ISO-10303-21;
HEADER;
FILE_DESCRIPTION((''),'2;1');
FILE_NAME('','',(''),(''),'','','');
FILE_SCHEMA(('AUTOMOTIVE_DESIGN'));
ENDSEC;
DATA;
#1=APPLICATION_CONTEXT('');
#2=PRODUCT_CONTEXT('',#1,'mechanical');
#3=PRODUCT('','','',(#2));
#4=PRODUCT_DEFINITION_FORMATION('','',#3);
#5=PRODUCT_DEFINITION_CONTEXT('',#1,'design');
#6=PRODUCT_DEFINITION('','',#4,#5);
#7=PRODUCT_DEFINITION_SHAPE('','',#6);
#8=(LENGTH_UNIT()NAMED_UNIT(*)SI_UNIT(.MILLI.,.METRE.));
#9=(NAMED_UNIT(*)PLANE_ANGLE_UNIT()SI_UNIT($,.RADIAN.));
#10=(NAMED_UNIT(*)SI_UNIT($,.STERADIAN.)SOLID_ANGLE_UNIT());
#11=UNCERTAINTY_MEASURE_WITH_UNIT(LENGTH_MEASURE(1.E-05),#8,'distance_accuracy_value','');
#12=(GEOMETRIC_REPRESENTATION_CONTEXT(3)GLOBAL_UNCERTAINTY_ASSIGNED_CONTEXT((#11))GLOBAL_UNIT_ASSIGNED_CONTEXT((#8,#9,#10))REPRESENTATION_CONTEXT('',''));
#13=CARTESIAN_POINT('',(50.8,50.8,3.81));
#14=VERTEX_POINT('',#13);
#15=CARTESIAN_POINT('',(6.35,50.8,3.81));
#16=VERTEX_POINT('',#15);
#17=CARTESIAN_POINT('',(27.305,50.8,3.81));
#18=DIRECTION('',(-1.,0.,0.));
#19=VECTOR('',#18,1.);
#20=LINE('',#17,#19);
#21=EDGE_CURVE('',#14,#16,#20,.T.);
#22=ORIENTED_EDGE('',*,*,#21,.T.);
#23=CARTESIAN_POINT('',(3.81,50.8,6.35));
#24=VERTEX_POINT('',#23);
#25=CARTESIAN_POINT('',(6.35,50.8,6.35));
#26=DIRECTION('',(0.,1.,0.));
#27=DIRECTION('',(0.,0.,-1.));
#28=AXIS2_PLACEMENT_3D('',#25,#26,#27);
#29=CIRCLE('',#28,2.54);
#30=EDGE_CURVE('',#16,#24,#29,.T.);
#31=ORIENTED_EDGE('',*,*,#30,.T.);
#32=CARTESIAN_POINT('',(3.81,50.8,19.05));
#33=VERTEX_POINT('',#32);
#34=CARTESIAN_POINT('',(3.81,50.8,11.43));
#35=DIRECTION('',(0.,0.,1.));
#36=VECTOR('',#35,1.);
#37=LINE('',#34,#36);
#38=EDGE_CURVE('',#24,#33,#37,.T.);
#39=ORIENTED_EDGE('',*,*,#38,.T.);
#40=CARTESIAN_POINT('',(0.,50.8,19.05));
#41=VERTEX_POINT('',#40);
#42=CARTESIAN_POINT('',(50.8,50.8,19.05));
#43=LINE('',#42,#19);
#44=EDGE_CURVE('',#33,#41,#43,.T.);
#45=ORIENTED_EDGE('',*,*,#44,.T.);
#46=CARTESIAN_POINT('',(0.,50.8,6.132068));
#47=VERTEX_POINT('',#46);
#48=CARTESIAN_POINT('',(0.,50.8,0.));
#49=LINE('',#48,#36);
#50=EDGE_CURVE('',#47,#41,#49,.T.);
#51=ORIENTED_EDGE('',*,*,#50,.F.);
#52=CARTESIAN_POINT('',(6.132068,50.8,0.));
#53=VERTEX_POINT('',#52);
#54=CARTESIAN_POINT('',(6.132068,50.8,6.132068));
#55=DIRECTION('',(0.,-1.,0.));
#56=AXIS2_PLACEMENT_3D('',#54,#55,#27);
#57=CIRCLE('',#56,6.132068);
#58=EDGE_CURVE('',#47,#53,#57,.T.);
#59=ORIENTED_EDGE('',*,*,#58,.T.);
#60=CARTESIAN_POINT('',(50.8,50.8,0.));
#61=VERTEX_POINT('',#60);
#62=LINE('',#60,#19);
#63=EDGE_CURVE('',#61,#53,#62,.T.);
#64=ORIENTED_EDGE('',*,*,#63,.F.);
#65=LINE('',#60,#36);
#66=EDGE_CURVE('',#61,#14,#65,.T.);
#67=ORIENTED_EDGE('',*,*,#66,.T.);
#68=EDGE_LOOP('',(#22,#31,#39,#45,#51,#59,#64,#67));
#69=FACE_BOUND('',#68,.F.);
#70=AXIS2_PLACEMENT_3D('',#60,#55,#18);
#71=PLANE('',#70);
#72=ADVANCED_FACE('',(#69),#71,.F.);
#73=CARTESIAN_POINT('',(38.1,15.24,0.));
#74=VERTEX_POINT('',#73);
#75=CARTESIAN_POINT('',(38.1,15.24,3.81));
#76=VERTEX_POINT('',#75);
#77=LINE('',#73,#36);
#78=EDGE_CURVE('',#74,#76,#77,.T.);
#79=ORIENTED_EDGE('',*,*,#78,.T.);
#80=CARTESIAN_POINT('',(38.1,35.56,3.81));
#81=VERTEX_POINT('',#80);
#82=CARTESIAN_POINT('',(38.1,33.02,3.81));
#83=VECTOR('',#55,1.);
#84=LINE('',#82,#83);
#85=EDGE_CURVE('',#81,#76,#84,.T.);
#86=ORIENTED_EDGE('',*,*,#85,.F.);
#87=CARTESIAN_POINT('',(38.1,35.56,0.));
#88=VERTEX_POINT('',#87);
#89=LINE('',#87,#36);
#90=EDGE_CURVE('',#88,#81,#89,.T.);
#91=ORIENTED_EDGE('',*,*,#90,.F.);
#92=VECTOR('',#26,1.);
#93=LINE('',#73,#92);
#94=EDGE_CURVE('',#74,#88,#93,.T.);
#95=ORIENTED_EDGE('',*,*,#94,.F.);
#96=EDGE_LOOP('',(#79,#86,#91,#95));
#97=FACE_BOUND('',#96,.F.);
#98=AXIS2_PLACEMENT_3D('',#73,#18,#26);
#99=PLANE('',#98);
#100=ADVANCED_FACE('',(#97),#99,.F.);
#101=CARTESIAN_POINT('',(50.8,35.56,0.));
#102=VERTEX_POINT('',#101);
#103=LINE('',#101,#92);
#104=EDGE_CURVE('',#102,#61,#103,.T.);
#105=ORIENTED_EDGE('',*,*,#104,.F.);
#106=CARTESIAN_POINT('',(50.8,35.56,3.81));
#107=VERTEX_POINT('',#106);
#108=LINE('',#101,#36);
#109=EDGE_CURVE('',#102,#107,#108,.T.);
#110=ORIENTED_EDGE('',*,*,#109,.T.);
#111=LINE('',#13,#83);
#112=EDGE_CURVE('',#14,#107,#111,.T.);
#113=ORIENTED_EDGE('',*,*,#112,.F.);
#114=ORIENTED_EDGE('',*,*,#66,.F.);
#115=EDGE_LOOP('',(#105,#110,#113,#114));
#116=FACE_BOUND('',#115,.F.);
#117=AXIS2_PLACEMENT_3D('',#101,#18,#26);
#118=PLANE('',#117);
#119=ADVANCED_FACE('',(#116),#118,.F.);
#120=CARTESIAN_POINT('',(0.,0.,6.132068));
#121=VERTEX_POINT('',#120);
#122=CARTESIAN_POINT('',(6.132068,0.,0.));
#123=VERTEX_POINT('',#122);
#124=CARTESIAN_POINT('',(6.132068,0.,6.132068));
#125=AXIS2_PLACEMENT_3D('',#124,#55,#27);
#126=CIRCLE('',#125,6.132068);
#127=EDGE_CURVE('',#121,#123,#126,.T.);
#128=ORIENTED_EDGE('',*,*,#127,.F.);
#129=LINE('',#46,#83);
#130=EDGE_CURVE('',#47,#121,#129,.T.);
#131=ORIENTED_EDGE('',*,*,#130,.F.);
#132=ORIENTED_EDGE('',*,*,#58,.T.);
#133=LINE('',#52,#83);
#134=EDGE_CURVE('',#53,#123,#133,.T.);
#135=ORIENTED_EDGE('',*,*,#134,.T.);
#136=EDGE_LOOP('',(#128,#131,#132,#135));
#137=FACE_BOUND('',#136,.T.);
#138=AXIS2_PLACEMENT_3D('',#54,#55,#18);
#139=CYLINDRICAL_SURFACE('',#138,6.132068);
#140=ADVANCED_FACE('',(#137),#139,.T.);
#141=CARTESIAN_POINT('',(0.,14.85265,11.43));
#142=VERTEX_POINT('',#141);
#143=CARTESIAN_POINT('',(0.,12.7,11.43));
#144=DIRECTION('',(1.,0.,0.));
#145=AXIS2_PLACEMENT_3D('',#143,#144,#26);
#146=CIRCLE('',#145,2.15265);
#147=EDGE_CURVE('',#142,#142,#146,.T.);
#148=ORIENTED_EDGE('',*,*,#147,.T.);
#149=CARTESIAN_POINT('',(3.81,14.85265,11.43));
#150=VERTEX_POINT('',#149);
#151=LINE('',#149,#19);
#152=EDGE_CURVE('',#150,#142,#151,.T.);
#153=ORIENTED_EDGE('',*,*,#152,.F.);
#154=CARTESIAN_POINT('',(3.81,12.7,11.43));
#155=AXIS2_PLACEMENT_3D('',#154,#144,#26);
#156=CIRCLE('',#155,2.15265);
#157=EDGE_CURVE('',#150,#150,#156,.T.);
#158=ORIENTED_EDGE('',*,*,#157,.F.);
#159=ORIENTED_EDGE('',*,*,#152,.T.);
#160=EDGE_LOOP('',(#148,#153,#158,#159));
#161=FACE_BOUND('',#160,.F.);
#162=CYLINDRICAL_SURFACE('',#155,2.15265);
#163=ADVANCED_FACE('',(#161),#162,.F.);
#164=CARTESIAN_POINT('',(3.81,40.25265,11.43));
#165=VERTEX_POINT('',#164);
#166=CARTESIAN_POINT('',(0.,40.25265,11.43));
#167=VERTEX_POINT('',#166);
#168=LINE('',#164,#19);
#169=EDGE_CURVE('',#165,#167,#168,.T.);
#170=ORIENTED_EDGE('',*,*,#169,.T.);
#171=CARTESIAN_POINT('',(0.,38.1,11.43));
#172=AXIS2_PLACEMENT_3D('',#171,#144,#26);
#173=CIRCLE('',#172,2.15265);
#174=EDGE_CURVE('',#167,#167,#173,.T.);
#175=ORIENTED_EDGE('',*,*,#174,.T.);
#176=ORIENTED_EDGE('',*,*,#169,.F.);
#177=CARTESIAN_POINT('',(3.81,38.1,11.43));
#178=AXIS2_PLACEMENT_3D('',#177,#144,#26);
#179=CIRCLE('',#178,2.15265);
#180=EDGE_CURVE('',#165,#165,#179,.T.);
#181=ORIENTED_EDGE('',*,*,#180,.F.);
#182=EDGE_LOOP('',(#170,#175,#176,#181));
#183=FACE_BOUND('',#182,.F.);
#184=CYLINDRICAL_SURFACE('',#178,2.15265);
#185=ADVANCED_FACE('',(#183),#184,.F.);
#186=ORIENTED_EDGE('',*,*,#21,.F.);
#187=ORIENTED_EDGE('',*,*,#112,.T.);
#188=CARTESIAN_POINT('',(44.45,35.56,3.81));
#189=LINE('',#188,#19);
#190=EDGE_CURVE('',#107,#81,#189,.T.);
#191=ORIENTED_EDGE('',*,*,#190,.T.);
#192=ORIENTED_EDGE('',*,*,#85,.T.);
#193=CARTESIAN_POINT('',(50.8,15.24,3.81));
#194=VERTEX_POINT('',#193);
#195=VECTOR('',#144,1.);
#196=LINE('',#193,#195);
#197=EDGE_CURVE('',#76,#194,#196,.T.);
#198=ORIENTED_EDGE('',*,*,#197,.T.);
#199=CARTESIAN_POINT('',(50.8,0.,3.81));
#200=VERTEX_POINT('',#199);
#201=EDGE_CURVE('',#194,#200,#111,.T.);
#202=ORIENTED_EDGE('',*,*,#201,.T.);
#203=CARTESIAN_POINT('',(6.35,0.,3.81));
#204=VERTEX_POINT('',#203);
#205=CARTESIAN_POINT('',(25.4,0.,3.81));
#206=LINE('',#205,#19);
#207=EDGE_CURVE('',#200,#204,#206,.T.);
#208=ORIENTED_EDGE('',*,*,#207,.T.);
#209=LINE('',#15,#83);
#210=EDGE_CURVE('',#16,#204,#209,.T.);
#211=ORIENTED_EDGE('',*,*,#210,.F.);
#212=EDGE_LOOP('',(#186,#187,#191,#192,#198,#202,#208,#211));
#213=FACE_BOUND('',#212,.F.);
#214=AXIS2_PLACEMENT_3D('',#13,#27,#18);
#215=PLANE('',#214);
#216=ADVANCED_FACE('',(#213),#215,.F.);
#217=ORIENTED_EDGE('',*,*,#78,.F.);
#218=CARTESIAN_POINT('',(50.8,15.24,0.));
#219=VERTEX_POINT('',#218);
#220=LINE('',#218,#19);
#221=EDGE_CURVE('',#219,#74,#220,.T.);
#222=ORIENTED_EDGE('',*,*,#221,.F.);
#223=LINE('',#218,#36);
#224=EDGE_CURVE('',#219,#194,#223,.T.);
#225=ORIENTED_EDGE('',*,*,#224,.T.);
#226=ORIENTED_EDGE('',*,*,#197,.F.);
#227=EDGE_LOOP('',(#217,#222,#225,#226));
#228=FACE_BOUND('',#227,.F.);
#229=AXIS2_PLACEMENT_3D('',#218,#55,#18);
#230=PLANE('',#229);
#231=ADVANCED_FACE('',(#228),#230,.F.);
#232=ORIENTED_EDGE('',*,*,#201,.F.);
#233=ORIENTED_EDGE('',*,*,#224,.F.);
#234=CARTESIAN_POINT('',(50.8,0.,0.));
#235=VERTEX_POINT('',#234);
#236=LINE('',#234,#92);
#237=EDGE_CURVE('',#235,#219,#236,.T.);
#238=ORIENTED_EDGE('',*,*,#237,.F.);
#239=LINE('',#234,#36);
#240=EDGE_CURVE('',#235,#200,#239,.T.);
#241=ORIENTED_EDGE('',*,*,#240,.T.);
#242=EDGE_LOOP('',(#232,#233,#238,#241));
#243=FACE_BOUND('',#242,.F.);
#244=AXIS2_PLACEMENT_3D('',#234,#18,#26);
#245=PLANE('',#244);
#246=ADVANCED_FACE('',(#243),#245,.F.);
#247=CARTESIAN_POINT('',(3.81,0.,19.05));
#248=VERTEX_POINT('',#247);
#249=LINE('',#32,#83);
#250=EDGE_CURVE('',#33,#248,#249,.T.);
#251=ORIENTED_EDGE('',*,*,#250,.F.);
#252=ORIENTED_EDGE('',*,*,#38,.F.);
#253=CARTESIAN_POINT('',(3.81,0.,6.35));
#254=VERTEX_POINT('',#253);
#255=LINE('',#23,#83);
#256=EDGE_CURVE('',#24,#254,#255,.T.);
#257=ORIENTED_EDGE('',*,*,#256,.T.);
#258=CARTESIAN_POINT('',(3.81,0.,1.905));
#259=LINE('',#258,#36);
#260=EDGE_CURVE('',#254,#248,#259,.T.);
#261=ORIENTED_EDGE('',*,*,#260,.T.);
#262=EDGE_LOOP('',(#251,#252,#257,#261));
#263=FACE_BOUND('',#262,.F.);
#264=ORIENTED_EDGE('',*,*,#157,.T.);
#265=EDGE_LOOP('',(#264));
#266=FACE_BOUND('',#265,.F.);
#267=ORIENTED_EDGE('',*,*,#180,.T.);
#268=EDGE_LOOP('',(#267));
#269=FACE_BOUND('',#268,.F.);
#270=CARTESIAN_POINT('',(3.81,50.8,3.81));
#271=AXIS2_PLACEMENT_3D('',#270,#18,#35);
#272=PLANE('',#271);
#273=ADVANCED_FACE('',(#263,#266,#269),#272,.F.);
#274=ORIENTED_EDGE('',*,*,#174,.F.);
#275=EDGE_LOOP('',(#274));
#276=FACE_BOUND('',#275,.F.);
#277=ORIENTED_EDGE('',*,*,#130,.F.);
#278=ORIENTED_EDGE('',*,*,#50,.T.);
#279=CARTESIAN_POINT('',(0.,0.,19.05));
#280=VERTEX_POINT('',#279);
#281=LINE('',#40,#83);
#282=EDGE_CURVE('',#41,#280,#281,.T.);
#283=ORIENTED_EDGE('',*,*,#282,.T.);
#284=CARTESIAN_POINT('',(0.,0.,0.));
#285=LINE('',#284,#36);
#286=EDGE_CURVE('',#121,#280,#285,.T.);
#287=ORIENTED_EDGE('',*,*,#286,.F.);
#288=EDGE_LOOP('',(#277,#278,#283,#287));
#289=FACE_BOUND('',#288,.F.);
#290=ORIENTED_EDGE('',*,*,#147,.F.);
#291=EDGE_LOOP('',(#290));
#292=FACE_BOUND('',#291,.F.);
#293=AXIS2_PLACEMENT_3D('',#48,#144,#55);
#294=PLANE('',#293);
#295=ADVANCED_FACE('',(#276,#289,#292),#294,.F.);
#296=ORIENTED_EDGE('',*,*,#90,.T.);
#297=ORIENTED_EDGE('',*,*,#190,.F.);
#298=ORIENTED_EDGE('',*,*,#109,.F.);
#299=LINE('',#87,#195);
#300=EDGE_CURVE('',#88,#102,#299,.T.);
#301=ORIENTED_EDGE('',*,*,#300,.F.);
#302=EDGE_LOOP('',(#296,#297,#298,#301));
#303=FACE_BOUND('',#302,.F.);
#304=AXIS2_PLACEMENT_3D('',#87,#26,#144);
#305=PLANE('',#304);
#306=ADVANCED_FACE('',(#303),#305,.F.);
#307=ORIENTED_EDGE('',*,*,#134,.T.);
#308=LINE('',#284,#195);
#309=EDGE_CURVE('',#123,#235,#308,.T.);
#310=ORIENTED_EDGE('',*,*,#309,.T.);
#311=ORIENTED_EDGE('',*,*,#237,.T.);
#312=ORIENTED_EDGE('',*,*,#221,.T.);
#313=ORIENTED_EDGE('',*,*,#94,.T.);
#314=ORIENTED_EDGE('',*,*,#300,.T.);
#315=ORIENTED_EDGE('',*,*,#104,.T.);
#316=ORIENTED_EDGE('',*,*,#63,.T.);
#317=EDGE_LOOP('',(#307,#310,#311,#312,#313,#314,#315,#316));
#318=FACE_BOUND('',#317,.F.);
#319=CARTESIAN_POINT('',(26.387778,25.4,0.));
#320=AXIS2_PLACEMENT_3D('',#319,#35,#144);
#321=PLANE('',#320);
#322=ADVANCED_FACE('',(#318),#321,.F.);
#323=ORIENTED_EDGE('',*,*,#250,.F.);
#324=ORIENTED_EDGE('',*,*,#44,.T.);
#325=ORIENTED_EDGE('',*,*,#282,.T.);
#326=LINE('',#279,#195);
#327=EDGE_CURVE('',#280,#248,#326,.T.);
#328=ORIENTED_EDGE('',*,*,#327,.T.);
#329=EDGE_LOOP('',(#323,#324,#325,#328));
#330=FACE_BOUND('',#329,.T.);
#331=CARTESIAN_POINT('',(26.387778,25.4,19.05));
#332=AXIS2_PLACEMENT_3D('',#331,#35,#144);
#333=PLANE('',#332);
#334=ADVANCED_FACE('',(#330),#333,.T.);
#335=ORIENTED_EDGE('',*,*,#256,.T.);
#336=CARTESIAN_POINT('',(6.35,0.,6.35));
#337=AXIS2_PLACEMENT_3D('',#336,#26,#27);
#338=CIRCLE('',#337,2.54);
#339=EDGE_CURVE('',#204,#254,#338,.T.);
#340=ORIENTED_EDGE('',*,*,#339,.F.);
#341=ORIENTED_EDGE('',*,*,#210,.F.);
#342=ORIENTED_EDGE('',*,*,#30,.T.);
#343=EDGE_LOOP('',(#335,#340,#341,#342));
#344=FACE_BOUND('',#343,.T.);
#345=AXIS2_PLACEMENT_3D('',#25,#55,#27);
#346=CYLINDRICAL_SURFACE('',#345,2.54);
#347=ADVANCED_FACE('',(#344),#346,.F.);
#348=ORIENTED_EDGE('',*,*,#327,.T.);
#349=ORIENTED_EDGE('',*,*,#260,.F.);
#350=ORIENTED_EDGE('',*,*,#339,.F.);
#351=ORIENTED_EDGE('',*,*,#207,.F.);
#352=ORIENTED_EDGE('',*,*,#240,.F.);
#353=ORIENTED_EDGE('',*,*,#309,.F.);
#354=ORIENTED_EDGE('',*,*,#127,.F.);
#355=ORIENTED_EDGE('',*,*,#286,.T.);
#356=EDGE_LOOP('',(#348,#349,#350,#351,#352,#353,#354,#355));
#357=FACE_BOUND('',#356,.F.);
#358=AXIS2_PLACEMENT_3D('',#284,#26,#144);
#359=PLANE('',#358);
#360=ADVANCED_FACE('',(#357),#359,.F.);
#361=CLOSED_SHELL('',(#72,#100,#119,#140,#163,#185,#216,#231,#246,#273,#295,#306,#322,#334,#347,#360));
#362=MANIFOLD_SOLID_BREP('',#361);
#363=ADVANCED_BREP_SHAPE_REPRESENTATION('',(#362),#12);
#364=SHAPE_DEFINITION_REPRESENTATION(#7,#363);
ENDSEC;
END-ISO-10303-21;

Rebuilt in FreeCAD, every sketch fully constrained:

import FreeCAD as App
import Part
import Sketcher
Q = App.Units.Quantity


def edges_at(feature, points):
    """Names of the edges that pass closest to the given points."""
    edges = feature.Shape.Edges
    near = lambda p: min(range(len(edges)), key=lambda i: edges[i].distToShape(Part.Vertex(*p))[0])
    return sorted({f"Edge{near(p) + 1}" for p in points})


def add_polygon(sketch, points):
    """Adds a closed chain of lines whose ends are joined by coincident constraints."""
    first, n = sketch.GeometryCount, len(points)
    for a, b in zip(points, points[1:] + points[:1]):
        sketch.addGeometry(Part.LineSegment(App.Vector(*a, 0), App.Vector(*b, 0)), False)
    for i in range(n):
        sketch.addConstraint(Sketcher.Constraint("Coincident", first + i, 2, first + (i + 1) % n, 1))

doc = App.newDocument("Part")
body = doc.addObject("PartDesign::Body", "Body")

sketch1 = body.newObject("Sketcher::SketchObject", "Sketch")
sketch1.AttachmentSupport = (doc.getObject("XY_Plane"), [""])
sketch1.MapMode = "FlatFace"
add_polygon(sketch1, [(38, 15), (38, 36), (51, 36), (51, 51), (0, 51), (0, 0), (51, 0), (51, 15)])
sketch1.addConstraint([
    Sketcher.Constraint("Vertical", 0),
    Sketcher.Constraint("Horizontal", 1),
    Sketcher.Constraint("Vertical", 2),
    Sketcher.Constraint("Horizontal", 3),
    Sketcher.Constraint("Vertical", 4),
    Sketcher.Constraint("Horizontal", 5),
    Sketcher.Constraint("Vertical", 6),
    Sketcher.Constraint("Horizontal", 7),
    Sketcher.Constraint("Coincident", 4, 2, -1, 1),
    Sketcher.Constraint("Vertical", 2, 2, 5, 2),
    Sketcher.Constraint("Equal", 5, 4),
    Sketcher.Constraint("Equal", 2, 6),
    Sketcher.Constraint("DistanceX", 3, 2, 3, 1, Q("2 in")),
    Sketcher.Constraint("DistanceX", 1, 1, 1, 2, Q("0.5 in")),
    Sketcher.Constraint("DistanceY", 0, 1, 0, 2, Q("0.8 in")),
])
pad1 = body.newObject("PartDesign::Pad", "Pad")
pad1.Profile = sketch1
pad1.Length = Q("0.75 in")

sketch2 = body.newObject("Sketcher::SketchObject", "Sketch001")
sketch2.AttachmentSupport = (doc.getObject("XZ_Plane"), [""])
sketch2.MapMode = "FlatFace"
sketch2.AttachmentOffset = App.Placement(App.Vector(0, 0, -2 * 25.4), App.Rotation())
add_polygon(sketch2, [(51, 19), (51, 4), (4, 4), (4, 19)])
sketch2.addConstraint([
    Sketcher.Constraint("Vertical", 0),
    Sketcher.Constraint("Horizontal", 1),
    Sketcher.Constraint("Vertical", 2),
    Sketcher.Constraint("Horizontal", 3),
    Sketcher.Constraint("DistanceY", 0, 2, 0, 1, Q("0.6 in")),
    Sketcher.Constraint("DistanceX", -1, 1, 0, 2, Q("2 in")),
    Sketcher.Constraint("DistanceX", 1, 2, 1, 1, Q("1.85 in")),
    Sketcher.Constraint("DistanceY", -1, 1, 0, 2, Q("0.15 in")),
])
pocket1 = body.newObject("PartDesign::Pocket", "Pocket")
pocket1.Profile = sketch2
pocket1.Type = "ThroughAll"
pocket1.Reversed = True

sketch3 = body.newObject("Sketcher::SketchObject", "Sketch002")
sketch3.AttachmentSupport = (doc.getObject("YZ_Plane"), [""])
sketch3.MapMode = "FlatFace"
sketch3.AttachmentOffset = App.Placement(App.Vector(0, 0, 0.15 * 25.4), App.Rotation())
sketch3.addGeometry([
    Part.Circle(App.Vector(38.1, 11.4, 0), App.Vector(0, 0, 1), 2.2),
    Part.Circle(App.Vector(12.7, 11.4, 0), App.Vector(0, 0, 1), 2.2),
], False)
sketch3.addConstraint([
    Sketcher.Constraint("Equal", 0, 1),
    Sketcher.Constraint("Horizontal", 0, 3, 1, 3),
    Sketcher.Constraint("DistanceX", 1, 3, 0, 3, Q("1 in")),
    Sketcher.Constraint("Diameter", 0, Q("0.1695 in")),
    Sketcher.Constraint("DistanceX", -1, 1, 0, 3, Q("1.5 in")),
    Sketcher.Constraint("DistanceY", -1, 1, 0, 3, Q("0.45 in")),
])
pocket2 = body.newObject("PartDesign::Pocket", "Pocket001")
pocket2.Profile = sketch3
pocket2.Type = "ThroughAll"
doc.recompute()

fillet = body.newObject("PartDesign::Fillet", "Fillet")
fillet.Base = (pocket2, edges_at(pocket2, [(3.81, 25.4, 3.81)]))
fillet.Radius = Q("0.1 in")
doc.recompute()

fillet2 = body.newObject("PartDesign::Fillet", "Fillet001")
fillet2.Base = (fillet, edges_at(fillet, [(0, 25.4, 0)]))
fillet2.Radius = 6.132068

doc.recompute()
